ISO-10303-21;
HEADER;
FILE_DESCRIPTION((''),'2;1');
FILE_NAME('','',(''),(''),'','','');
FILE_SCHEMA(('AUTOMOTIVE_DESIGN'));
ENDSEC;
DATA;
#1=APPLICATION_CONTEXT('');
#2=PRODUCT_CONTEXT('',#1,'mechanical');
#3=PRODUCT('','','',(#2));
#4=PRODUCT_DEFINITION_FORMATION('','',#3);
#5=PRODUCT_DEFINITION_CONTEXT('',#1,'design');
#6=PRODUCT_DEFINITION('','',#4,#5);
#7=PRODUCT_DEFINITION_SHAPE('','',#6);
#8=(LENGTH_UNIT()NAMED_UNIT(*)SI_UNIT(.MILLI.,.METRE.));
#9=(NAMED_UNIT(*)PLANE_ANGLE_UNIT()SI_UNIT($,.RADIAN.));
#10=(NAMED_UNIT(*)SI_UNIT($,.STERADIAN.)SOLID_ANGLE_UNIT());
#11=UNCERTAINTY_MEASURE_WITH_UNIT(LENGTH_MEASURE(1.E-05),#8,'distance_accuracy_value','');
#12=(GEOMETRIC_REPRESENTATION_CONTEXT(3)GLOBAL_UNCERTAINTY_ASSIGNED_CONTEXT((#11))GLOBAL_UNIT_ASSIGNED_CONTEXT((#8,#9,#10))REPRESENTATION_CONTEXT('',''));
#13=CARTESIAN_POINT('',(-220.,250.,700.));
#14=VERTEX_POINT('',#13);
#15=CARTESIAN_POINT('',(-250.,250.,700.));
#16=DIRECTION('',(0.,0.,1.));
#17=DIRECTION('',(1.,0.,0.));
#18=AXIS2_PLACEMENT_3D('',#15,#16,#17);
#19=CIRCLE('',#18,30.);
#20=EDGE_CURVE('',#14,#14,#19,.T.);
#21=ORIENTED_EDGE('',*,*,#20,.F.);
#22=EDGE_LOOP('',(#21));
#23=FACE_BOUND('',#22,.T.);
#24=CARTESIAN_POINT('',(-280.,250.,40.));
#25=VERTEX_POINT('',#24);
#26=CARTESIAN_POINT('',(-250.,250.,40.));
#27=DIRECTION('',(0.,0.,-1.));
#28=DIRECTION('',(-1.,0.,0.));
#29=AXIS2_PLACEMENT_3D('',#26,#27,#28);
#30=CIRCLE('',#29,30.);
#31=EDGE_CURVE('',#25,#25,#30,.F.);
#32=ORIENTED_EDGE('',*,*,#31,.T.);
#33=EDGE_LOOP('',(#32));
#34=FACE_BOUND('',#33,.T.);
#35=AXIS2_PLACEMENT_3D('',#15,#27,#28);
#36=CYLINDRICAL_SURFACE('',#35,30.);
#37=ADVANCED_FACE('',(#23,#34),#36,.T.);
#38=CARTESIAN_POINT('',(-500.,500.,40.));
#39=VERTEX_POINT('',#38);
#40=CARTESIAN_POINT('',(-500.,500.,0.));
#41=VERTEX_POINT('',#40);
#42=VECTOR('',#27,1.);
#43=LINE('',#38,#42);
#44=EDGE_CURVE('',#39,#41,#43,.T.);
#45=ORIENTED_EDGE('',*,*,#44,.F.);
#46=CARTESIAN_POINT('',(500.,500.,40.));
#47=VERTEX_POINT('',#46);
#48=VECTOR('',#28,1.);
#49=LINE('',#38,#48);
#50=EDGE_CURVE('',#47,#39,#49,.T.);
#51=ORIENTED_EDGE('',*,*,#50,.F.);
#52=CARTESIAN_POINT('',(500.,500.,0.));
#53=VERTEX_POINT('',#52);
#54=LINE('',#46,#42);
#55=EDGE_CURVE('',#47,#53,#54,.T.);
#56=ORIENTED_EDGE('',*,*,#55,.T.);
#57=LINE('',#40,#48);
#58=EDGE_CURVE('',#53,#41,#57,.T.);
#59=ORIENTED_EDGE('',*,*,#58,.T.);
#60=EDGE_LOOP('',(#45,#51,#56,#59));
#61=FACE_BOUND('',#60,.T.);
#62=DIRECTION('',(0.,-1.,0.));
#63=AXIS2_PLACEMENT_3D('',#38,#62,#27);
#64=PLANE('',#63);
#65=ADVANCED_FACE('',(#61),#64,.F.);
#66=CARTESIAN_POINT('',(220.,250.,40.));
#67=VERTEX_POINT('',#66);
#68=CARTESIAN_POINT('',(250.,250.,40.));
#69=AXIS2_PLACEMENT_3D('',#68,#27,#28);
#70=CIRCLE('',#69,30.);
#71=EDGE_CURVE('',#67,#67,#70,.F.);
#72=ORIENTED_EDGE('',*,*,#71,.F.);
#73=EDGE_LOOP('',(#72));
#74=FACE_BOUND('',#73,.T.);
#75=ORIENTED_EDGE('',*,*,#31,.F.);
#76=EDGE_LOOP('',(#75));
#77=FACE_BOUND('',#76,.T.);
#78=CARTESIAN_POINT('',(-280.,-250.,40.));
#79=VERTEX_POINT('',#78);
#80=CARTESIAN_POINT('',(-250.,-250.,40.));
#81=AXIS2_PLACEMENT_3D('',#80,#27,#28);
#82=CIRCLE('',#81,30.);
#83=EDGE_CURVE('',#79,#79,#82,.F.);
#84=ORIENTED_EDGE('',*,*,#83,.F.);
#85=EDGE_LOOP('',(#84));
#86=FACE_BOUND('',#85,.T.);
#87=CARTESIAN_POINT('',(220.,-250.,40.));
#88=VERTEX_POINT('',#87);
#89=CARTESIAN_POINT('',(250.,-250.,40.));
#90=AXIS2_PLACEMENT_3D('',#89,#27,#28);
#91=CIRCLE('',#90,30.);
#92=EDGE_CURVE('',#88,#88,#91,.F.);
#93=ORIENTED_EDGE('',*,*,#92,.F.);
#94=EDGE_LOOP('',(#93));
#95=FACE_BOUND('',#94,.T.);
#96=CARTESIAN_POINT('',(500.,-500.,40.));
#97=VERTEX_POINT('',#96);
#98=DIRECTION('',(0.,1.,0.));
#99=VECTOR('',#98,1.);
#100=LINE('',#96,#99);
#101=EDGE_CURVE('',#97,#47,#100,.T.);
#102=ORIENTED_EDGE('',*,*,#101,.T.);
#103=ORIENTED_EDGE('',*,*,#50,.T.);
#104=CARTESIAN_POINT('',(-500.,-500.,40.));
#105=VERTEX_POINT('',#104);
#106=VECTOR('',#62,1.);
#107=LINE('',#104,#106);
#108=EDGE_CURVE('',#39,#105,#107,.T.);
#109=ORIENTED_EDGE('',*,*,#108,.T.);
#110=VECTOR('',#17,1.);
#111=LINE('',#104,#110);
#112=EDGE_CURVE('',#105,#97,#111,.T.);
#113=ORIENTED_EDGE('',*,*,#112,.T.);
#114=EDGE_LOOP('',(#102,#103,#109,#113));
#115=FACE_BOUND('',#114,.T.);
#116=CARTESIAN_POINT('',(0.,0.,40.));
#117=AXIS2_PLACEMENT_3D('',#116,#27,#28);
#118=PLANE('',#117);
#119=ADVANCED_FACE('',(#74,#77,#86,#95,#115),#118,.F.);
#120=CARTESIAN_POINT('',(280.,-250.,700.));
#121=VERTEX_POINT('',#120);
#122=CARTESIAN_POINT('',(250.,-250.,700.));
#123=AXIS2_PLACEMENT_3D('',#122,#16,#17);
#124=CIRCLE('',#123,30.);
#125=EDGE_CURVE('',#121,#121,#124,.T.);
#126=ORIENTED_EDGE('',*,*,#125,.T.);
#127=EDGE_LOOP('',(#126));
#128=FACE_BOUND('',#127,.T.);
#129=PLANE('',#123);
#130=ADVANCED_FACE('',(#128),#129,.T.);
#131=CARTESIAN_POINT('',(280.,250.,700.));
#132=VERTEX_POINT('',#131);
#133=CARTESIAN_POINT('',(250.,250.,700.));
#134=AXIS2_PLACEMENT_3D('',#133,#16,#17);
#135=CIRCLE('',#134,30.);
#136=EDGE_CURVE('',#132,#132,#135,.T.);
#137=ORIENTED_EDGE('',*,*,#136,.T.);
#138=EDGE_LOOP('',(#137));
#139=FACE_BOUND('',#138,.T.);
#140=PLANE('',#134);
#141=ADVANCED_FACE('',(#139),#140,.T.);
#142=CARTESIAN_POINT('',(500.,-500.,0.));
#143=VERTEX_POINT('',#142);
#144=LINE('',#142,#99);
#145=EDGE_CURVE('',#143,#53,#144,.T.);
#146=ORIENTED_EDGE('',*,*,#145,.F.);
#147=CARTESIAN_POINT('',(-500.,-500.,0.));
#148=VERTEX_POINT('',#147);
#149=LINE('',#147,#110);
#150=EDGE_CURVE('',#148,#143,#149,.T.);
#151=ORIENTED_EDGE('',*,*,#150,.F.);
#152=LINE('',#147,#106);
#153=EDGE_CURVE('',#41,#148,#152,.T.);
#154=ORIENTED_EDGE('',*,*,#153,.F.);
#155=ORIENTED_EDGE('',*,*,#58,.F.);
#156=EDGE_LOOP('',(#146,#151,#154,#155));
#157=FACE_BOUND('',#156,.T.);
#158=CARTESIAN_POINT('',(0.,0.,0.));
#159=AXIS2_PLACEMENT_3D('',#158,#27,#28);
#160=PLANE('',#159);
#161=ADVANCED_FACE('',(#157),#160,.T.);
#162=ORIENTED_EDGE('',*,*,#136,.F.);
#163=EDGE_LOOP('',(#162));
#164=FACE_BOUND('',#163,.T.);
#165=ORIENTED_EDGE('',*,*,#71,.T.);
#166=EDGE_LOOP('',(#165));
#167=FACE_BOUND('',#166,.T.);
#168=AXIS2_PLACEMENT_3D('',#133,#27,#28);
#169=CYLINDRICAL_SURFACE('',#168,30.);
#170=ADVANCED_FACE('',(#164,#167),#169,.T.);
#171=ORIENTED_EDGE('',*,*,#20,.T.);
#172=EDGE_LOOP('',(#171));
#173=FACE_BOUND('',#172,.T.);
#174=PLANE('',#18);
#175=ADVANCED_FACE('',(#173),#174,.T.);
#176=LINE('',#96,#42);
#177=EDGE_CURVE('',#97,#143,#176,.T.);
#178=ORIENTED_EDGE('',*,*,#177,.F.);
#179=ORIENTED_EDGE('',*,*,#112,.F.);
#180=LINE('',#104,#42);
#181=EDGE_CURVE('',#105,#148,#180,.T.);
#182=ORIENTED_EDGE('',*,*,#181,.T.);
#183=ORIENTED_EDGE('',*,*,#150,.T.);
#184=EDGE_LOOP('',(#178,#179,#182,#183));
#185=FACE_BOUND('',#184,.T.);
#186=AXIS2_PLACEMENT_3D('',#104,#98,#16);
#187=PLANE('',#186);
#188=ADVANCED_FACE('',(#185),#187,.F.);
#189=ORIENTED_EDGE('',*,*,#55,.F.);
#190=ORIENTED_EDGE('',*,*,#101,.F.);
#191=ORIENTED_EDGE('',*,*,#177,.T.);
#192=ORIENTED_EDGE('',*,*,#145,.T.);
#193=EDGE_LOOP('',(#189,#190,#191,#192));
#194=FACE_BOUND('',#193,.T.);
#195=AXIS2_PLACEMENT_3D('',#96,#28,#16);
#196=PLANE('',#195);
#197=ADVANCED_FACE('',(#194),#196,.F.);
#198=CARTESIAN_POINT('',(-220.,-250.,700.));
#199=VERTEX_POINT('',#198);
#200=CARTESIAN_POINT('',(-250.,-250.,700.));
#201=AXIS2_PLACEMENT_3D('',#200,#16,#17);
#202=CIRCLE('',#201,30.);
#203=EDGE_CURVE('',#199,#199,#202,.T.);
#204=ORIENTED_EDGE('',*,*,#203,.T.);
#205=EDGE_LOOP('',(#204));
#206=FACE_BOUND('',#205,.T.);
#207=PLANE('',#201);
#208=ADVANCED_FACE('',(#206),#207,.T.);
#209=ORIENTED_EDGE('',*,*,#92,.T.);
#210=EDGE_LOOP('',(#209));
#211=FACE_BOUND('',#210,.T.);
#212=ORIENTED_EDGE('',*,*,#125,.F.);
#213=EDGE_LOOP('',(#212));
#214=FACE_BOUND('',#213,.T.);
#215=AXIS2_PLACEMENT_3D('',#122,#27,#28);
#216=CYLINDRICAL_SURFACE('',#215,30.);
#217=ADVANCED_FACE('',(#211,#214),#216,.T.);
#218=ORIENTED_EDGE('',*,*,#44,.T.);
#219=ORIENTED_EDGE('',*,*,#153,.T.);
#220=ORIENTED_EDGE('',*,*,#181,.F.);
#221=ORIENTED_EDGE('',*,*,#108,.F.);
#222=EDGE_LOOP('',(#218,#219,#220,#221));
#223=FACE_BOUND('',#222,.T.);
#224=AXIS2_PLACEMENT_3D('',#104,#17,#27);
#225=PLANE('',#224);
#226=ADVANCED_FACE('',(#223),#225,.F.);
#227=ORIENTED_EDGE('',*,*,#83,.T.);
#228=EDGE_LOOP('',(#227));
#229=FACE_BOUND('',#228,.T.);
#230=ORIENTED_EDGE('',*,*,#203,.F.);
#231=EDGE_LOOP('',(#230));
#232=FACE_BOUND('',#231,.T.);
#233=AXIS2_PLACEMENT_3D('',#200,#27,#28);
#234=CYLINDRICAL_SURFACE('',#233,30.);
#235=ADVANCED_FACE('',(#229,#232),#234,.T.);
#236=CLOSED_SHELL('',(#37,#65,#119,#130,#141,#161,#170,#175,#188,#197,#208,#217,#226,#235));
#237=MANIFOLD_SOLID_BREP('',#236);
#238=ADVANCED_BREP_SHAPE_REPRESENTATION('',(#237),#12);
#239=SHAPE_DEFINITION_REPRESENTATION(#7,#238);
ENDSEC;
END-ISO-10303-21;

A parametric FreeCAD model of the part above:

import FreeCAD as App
import Part
import Sketcher
from FreeCAD import Vector
Q = App.Units.Quantity

doc = App.newDocument("Part")
body = doc.addObject("PartDesign::Body", "Body")

sketch1 = body.newObject("Sketcher::SketchObject", "Sketch")
sketch1.AttachmentSupport = (doc.getObject("XY_Plane"), [""])
sketch1.MapMode = "FlatFace"
sketch1.addGeometry([
    Part.LineSegment(Vector(-500, 500, 0), Vector(-500, -500, 0)),
    Part.LineSegment(Vector(-500, -500, 0), Vector(500, -500, 0)),
    Part.LineSegment(Vector(500, -500, 0), Vector(500, 500, 0)),
    Part.LineSegment(Vector(500, 500, 0), Vector(-500, 500, 0)),
], False)
sketch1.addConstraint([
    Sketcher.Constraint("Coincident", 0, 2, 1, 1),
    Sketcher.Constraint("Coincident", 1, 2, 2, 1),
    Sketcher.Constraint("Coincident", 2, 2, 3, 1),
    Sketcher.Constraint("Coincident", 3, 2, 0, 1),
    Sketcher.Constraint("Vertical", 0),
    Sketcher.Constraint("Horizontal", 1),
    Sketcher.Constraint("Vertical", 2),
    Sketcher.Constraint("Horizontal", 3),
    Sketcher.Constraint("Symmetric", 0, 2, 2, 2, -1, 1),
    Sketcher.Constraint("Equal", 3, 0),
    Sketcher.Constraint("DistanceX", 1, 1, 1, 2, Q("1000 mm")),
])
pad1 = body.newObject("PartDesign::Pad", "Pad")
pad1.Profile = sketch1
pad1.Length = 40

sketch2 = body.newObject("Sketcher::SketchObject", "Sketch001")
sketch2.AttachmentSupport = (doc.getObject("XY_Plane"), [""])
sketch2.MapMode = "FlatFace"
sketch2.addGeometry(Part.Circle(Vector(-250, -250, 0), Vector(0, 0, 1), 30), False)
sketch2.addConstraint([
    Sketcher.Constraint("Diameter", 0, Q("60 mm")),
    Sketcher.Constraint("DistanceX", 0, 3, -1, 1, Q("250 mm")),
    Sketcher.Constraint("DistanceY", 0, 3, -1, 1, Q("250 mm")),
])
pad2 = body.newObject("PartDesign::Pad", "Pad001")
pad2.Profile = sketch2
pad2.Length = 700

sketch3 = body.newObject("Sketcher::SketchObject", "Sketch002")
sketch3.AttachmentSupport = (doc.getObject("XY_Plane"), [""])
sketch3.MapMode = "FlatFace"
sketch3.addGeometry(Part.Circle(Vector(250, -250, 0), Vector(0, 0, 1), 30), False)
sketch3.addConstraint([
    Sketcher.Constraint("Diameter", 0, Q("60 mm")),
    Sketcher.Constraint("DistanceX", -1, 1, 0, 3, Q("250 mm")),
    Sketcher.Constraint("DistanceY", 0, 3, -1, 1, Q("250 mm")),
])
pad3 = body.newObject("PartDesign::Pad", "Pad002")
pad3.Profile = sketch3
pad3.Length = 700

sketch4 = body.newObject("Sketcher::SketchObject", "Sketch003")
sketch4.AttachmentSupport = (doc.getObject("XY_Plane"), [""])
sketch4.MapMode = "FlatFace"
sketch4.addGeometry(Part.Circle(Vector(-250, 250, 0), Vector(0, 0, 1), 30), False)
sketch4.addConstraint([
    Sketcher.Constraint("Diameter", 0, Q("60 mm")),
    Sketcher.Constraint("DistanceX", 0, 3, -1, 1, Q("250 mm")),
    Sketcher.Constraint("DistanceY", -1, 1, 0, 3, Q("250 mm")),
])
pad4 = body.newObject("PartDesign::Pad", "Pad003")
pad4.Profile = sketch4
pad4.Length = 700

sketch5 = body.newObject("Sketcher::SketchObject", "Sketch004")
sketch5.AttachmentSupport = (doc.getObject("XY_Plane"), [""])
sketch5.MapMode = "FlatFace"
sketch5.addGeometry(Part.Circle(Vector(250, 250, 0), Vector(0, 0, 1), 30), False)
sketch5.addConstraint([
    Sketcher.Constraint("Diameter", 0, Q("60 mm")),
    Sketcher.Constraint("DistanceX", -1, 1, 0, 3, Q("250 mm")),
    Sketcher.Constraint("DistanceY", -1, 1, 0, 3, Q("250 mm")),
])
pad5 = body.newObject("PartDesign::Pad", "Pad004")
pad5.Profile = sketch5
pad5.Length = 700

doc.recompute()
